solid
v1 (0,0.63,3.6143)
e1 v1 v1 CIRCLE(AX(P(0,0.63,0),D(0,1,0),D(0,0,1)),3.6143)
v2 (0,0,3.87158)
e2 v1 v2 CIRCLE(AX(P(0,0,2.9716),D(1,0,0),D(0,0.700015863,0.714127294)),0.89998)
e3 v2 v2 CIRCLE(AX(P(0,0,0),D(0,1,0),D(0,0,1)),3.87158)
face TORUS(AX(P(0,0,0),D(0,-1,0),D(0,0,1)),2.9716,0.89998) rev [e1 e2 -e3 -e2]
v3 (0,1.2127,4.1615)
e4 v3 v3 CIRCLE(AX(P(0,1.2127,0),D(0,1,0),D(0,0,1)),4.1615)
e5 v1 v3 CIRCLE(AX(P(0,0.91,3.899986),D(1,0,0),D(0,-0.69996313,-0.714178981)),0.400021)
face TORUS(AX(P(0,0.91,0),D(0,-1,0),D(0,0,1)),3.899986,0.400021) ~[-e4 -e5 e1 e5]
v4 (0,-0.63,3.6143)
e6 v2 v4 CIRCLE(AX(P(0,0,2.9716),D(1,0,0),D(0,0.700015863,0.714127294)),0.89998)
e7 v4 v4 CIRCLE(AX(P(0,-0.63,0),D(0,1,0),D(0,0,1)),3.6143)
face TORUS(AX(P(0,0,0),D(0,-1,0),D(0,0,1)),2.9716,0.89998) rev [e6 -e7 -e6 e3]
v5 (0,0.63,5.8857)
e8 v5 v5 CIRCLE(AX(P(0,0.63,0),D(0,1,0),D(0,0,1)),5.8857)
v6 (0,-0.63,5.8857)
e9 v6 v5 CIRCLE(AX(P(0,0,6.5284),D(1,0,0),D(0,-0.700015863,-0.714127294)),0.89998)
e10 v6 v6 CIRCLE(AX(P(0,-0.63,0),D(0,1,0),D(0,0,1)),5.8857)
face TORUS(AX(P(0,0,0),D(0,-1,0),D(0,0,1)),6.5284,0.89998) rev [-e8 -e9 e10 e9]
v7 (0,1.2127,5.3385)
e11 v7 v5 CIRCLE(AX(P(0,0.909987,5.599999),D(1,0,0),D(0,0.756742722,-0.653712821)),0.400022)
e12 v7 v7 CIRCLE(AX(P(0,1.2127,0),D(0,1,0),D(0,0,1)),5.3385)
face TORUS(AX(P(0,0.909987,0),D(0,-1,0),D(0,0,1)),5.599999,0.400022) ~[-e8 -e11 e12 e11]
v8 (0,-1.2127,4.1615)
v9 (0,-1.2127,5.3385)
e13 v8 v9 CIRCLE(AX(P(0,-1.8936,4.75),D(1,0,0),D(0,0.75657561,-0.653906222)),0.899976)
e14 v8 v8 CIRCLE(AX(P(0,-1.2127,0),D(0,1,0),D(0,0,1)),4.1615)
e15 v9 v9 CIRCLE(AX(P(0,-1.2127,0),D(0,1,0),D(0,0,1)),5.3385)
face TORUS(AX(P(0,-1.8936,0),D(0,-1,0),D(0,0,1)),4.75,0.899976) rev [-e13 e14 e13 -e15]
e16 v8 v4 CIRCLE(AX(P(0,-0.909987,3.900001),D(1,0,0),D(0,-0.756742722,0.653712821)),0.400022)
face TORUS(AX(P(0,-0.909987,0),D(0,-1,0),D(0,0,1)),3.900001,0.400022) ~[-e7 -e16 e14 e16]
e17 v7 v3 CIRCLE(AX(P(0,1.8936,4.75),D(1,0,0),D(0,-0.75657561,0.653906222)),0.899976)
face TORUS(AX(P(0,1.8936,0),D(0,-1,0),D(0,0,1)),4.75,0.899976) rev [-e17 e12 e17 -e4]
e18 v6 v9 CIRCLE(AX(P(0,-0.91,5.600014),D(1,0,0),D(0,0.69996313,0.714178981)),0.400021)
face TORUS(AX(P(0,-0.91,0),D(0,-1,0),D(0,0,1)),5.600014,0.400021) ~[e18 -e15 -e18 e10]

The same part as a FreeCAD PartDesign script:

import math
import FreeCAD as App
import Part
import Sketcher
from FreeCAD import Vector

doc = App.newDocument("Part")
body = doc.addObject("PartDesign::Body", "Body")

# Sketch on YZ plane
sketch1 = body.newObject("Sketcher::SketchObject", "Sketch")
sketch1.AttachmentSupport = (doc.getObject("YZ_Plane"), [""])
sketch1.MapMode = "FlatFace"
sketch1.addGeometry([
    Part.ArcOfCircle(Part.Circle(Vector(-0.91, 5.6, 0), Vector(0, 0, 1), 0.400031), math.radians(45.577293), math.radians(220.823461)),  # 0
    Part.ArcOfCircle(Part.Circle(Vector(-1.8936, 4.75, 0), Vector(0, 0, 1), 0.899976), math.radians(-40.836766), math.radians(40.836766)),  # 1
    Part.ArcOfCircle(Part.Circle(Vector(-0.91, 3.9, 0), Vector(0, 0, 1), 0.400012), math.radians(139.176539), math.radians(314.422707)),  # 2
    Part.ArcOfCircle(Part.Circle(Vector(0, 2.9716, 0), Vector(0, 0, 1), 0.89998), math.radians(45.571723), math.radians(134.428277)),  # 3
    Part.ArcOfCircle(Part.Circle(Vector(0.91, 3.9, 0), Vector(0, 0, 1), 0.400031), math.radians(-134.422707), math.radians(40.823461)),  # 4
    Part.ArcOfCircle(Part.Circle(Vector(1.8936, 4.75, 0), Vector(0, 0, 1), 0.899976), math.radians(139.163234), math.radians(220.836766)),  # 5
    Part.ArcOfCircle(Part.Circle(Vector(0.91, 5.6, 0), Vector(0, 0, 1), 0.400012), math.radians(-40.823461), math.radians(134.422707)),  # 6
    Part.ArcOfCircle(Part.Circle(Vector(0, 6.5284, 0), Vector(0, 0, 1), 0.89998), math.radians(-134.428277), math.radians(-45.571723)),  # 7
], False)
sketch1.addConstraint([
    Sketcher.Constraint("Tangent", 0, 2, 1, 2),
    Sketcher.Constraint("Tangent", 1, 1, 2, 1),
    Sketcher.Constraint("Tangent", 2, 2, 3, 2),
    Sketcher.Constraint("Tangent", 3, 1, 4, 1),
    Sketcher.Constraint("Tangent", 4, 2, 5, 2),
    Sketcher.Constraint("Tangent", 5, 1, 6, 1),
    Sketcher.Constraint("Tangent", 6, 2, 7, 2),
    Sketcher.Constraint("Tangent", 7, 1, 0, 1),
    Sketcher.Constraint("Equal", 0, 2),
    Sketcher.Constraint("Equal", 1, 3),
    Sketcher.Constraint("Equal", 2, 4),
    Sketcher.Constraint("Equal", 3, 5),
    Sketcher.Constraint("Equal", 4, 6),
    Sketcher.Constraint("Equal", 5, 7),
    Sketcher.Constraint("Symmetric", 2, 3, 4, 3, -2),
    Sketcher.Constraint("Symmetric", 0, 3, 6, 3, -2),
    Sketcher.Constraint("Vertical", 0, 3, 2, 3),
    Sketcher.Constraint("Radius", 0, 0.4),
    Sketcher.Constraint("Radius", 1, 0.9),
    Sketcher.Constraint("DistanceY", -1, 1, 0, 3, 5.6),
    Sketcher.Constraint("DistanceY", -1, 1, 2, 3, 3.9),
    Sketcher.Constraint("DistanceX", 0, 3, -1, 1, 0.91),
])
revolution = body.newObject("PartDesign::Revolution", "Revolution")
revolution.Profile = sketch1
revolution.ReferenceAxis = (sketch1, ["H_Axis"])
revolution.Angle = 360

doc.recompute()
